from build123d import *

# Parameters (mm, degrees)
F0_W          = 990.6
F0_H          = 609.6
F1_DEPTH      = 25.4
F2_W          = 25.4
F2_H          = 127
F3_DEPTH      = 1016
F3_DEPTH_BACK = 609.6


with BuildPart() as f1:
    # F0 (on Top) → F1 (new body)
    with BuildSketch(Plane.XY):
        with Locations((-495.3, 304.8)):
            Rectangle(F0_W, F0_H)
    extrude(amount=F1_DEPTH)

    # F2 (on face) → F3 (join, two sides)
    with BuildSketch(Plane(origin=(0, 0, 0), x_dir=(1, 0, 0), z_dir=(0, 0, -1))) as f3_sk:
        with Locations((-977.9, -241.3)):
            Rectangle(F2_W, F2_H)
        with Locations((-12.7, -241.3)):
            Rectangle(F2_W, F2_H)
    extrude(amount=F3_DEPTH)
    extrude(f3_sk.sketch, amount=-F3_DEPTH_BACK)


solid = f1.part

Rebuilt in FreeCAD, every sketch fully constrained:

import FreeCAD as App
import Part
import Sketcher
from FreeCAD import Vector
Q = App.Units.Quantity


def add_polygon(sketch, points):
    """Adds a closed chain of lines whose ends are joined by coincident constraints."""
    first, n = sketch.GeometryCount, len(points)
    for a, b in zip(points, points[1:] + points[:1]):
        sketch.addGeometry(Part.LineSegment(App.Vector(*a, 0), App.Vector(*b, 0)), False)
    for i in range(n):
        sketch.addConstraint(Sketcher.Constraint("Coincident", first + i, 2, first + (i + 1) % n, 1))

doc = App.newDocument("Part")
params = doc.addObject("Spreadsheet::Sheet", "Params")
for row, (alias, value) in enumerate([
    ("sketch1_width", "39 in"),
    ("sketch1_height", "24 in"),
    ("pad1_length", "1 in"),
    ("sketch2_width", "1 in"),
    ("sketch2_height", "5 in"),
    ("pad2_length", "40 in"),
    ("pad2_length2", "24 in"),
], start=1):
    params.set(f"A{row}", alias)
    params.set(f"B{row}", "=" + value)
    params.setAlias(f"B{row}", alias)

body = doc.addObject("PartDesign::Body", "Body")

sketch1 = doc.addObject("Sketcher::SketchObject", "Sketch")
body.addObject(sketch1)
sketch1.AttachmentSupport = (doc.XY_Plane, [""])
sketch1.MapMode = "FlatFace"
add_polygon(sketch1, [(-991, 610), (-991, 0), (0, 0), (0, 610)])
sketch1.addConstraint([
    Sketcher.Constraint("Vertical", 0),
    Sketcher.Constraint("Horizontal", 1),
    Sketcher.Constraint("Vertical", 2),
    Sketcher.Constraint("Horizontal", 3),
    Sketcher.Constraint("Coincident", 1, 2, -1, 1),
    Sketcher.Constraint("DistanceX", 1, 1, 1, 2, Q("39 in")),
    Sketcher.Constraint("DistanceY", 0, 2, 0, 1, Q("24 in")),
])
sketch1.setExpression("Constraints[9]", "Params.sketch1_width")
sketch1.setExpression("Constraints[10]", "Params.sketch1_height")
pad1 = doc.addObject("PartDesign::Pad", "Pad")
body.addObject(pad1)
pad1.Profile = sketch1
pad1.setExpression("Length", "Params.pad1_length")

sketch2 = doc.addObject("Sketcher::SketchObject", "Sketch001")
body.addObject(sketch2)
sketch2.AttachmentSupport = (doc.XY_Plane, [""])
sketch2.MapMode = "FlatFace"
add_polygon(sketch2, [(-991, 178), (-991, 305), (-965, 305), (-965, 178)])
add_polygon(sketch2, [(-25, 178), (-25, 305), (0, 305), (0, 178)])
sketch2.addConstraint([
    Sketcher.Constraint("Vertical", 0),
    Sketcher.Constraint("Horizontal", 1),
    Sketcher.Constraint("Vertical", 2),
    Sketcher.Constraint("Horizontal", 3),
    Sketcher.Constraint("Vertical", 4),
    Sketcher.Constraint("Horizontal", 5),
    Sketcher.Constraint("Vertical", 6),
    Sketcher.Constraint("Horizontal", 7),
    Sketcher.Constraint("PointOnObject", 5, 2, -2),
    Sketcher.Constraint("Horizontal", 1, 2, 4, 2),
    Sketcher.Constraint("Horizontal", 3, 2, 6, 2),
    Sketcher.Constraint("Equal", 3, 5),
    Sketcher.Constraint("DistanceX", 1, 1, 1, 2, Q("1 in")),
    Sketcher.Constraint("DistanceY", 0, 1, 0, 2, Q("5 in")),
    Sketcher.Constraint("DistanceX", 0, 2, -1, 1, Q("39 in")),
    Sketcher.Constraint("DistanceY", -1, 1, 0, 2, Q("12 in")),
])
sketch2.setExpression("Constraints[20]", "Params.sketch2_width")
sketch2.setExpression("Constraints[21]", "Params.sketch2_height")
pad2 = doc.addObject("PartDesign::Pad", "Pad001")
body.addObject(pad2)
pad2.Profile = sketch2
pad2.Type = "TwoLengths"
pad2.setExpression("Length", "Params.pad2_length")
pad2.setExpression("Length2", "Params.pad2_length2")
pad2.Reversed = True

doc.recompute()
